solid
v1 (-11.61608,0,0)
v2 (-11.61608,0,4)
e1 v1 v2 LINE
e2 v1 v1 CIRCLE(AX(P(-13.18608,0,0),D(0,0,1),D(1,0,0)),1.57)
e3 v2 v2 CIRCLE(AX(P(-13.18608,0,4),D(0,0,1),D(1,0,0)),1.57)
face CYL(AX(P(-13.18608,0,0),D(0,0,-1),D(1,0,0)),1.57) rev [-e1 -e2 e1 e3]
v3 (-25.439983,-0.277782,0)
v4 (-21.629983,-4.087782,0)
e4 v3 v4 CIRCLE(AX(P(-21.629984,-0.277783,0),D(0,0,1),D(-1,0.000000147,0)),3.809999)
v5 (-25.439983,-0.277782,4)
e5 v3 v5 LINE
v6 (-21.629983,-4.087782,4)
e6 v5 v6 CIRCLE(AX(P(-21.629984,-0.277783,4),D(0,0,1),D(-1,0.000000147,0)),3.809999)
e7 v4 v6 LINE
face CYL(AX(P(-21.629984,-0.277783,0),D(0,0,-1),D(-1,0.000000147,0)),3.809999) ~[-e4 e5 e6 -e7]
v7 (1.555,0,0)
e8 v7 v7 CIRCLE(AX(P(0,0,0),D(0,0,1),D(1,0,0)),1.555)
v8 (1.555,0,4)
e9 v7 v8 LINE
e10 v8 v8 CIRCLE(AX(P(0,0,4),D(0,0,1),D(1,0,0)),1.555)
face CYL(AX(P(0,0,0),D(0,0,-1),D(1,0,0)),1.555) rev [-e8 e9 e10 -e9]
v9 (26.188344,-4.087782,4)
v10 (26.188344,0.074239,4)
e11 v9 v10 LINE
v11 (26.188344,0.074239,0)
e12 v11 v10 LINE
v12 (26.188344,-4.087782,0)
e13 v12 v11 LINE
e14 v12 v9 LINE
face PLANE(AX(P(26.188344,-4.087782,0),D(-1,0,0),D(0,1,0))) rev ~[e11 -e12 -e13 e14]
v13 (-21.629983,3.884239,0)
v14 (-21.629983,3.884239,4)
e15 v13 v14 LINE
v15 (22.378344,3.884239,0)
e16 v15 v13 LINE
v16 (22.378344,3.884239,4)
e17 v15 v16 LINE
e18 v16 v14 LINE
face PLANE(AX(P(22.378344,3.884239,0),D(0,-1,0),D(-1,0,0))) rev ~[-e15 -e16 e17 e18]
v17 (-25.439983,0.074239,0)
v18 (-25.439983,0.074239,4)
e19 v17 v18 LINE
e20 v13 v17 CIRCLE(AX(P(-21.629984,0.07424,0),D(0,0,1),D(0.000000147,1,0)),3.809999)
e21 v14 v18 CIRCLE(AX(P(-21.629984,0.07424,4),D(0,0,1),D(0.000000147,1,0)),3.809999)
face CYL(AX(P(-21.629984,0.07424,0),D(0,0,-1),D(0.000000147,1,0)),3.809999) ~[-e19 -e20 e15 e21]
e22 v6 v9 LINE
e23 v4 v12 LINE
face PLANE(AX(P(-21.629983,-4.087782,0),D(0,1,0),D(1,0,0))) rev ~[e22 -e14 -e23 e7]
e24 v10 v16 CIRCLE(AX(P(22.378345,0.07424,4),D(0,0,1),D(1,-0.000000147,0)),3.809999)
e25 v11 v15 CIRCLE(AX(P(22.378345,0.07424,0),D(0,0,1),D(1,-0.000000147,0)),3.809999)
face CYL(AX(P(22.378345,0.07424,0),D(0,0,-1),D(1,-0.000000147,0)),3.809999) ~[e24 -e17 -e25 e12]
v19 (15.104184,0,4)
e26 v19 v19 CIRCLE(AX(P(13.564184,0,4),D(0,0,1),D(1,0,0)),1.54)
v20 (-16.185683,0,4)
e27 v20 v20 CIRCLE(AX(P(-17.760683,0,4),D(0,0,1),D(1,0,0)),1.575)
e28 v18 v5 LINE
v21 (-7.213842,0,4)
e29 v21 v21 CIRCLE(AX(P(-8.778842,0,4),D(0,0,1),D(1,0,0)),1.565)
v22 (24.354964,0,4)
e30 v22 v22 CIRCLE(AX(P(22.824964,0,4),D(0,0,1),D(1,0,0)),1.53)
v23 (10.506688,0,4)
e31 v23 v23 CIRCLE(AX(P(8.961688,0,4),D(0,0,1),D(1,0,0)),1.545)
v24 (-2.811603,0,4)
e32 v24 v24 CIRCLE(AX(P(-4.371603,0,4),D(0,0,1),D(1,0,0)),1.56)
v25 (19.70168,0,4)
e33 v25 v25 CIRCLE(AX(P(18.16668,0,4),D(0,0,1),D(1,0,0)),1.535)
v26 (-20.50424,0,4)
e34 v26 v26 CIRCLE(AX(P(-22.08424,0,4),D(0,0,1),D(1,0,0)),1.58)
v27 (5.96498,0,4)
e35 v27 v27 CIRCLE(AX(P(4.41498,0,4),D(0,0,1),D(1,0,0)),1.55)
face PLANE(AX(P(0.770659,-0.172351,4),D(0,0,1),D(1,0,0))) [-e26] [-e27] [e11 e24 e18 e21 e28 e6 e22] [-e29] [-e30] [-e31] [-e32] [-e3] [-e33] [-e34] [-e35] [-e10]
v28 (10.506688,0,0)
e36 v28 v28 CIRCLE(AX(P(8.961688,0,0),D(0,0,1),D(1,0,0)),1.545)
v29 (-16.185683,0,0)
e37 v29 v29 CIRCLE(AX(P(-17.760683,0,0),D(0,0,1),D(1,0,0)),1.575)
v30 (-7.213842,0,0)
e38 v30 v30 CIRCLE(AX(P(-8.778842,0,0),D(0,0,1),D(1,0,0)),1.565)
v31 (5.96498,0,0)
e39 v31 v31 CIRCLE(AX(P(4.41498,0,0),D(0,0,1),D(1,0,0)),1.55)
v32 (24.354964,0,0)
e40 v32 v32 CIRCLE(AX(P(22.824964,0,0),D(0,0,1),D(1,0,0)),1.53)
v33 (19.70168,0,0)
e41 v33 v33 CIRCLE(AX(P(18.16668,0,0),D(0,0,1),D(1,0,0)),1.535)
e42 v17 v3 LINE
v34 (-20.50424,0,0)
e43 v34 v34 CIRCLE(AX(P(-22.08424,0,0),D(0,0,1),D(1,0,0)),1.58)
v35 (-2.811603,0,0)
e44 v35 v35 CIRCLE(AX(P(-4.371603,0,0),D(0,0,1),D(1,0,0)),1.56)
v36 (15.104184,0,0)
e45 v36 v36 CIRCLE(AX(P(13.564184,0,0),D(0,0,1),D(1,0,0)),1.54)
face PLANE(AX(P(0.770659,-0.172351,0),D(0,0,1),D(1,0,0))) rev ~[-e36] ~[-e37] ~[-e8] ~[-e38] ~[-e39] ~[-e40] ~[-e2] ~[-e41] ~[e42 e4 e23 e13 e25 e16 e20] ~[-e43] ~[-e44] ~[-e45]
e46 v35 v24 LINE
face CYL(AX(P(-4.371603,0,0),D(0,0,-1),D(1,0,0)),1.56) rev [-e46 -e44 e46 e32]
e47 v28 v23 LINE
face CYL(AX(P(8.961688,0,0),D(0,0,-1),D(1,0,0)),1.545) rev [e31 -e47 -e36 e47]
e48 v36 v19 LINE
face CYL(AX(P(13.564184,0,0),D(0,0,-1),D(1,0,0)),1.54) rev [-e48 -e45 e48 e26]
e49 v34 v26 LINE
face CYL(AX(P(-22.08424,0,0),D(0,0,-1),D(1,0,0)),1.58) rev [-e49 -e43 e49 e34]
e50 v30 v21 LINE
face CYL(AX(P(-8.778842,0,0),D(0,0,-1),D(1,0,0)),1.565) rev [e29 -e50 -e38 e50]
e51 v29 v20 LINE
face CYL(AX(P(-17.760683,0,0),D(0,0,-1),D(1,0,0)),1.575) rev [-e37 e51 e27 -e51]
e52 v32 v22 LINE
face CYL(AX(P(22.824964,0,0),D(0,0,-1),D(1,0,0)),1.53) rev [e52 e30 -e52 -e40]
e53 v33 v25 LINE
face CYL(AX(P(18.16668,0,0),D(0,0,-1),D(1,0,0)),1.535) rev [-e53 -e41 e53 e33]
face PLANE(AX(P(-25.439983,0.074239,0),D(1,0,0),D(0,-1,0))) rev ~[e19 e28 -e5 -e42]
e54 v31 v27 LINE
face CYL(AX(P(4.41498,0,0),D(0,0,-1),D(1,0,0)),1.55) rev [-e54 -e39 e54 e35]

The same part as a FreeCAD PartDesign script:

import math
import FreeCAD as App
import Part
import Sketcher
from FreeCAD import Vector

doc = App.newDocument("Part")
body = doc.addObject("PartDesign::Body", "Body")

sketch1 = body.newObject("Sketcher::SketchObject", "Sketch")
sketch1.AttachmentSupport = (doc.getObject("XY_Plane"), [""])
sketch1.MapMode = "FlatFace"
sketch1.addGeometry([
    Part.LineSegment(Vector(22.38, 3.88, 0), Vector(-21.63, 3.88, 0)),
    Part.ArcOfCircle(Part.Circle(Vector(-21.63, 0.07, 0), Vector(0, 0, 1), 3.81), math.radians(90), math.radians(180)),
    Part.LineSegment(Vector(-25.44, 0.07, 0), Vector(-25.44, -0.28, 0)),
    Part.ArcOfCircle(Part.Circle(Vector(-21.63, -0.28, 0), Vector(0, 0, 1), 3.81), math.radians(180), math.radians(270)),
    Part.LineSegment(Vector(-21.63, -4.09, 0), Vector(26.19, -4.09, 0)),
    Part.LineSegment(Vector(26.19, -4.09, 0), Vector(26.19, 0.07, 0)),
    Part.ArcOfCircle(Part.Circle(Vector(22.38, 0.07, 0), Vector(0, 0, 1), 3.81), math.radians(0), math.radians(90)),
    Part.Circle(Vector(-22.08, 0, 0), Vector(0, 0, 1), 1.58),
    Part.Circle(Vector(-17.76, 0, 0), Vector(0, 0, 1), 1.57),
    Part.Circle(Vector(-13.19, 0, 0), Vector(0, 0, 1), 1.57),
    Part.Circle(Vector(-8.78, 0, 0), Vector(0, 0, 1), 1.56),
    Part.Circle(Vector(-4.37, 0, 0), Vector(0, 0, 1), 1.56),
    Part.Circle(Vector(0, 0, 0), Vector(0, 0, 1), 1.55),
    Part.Circle(Vector(4.41, 0, 0), Vector(0, 0, 1), 1.55),
    Part.Circle(Vector(8.96, 0, 0), Vector(0, 0, 1), 1.54),
    Part.Circle(Vector(13.56, 0, 0), Vector(0, 0, 1), 1.54),
    Part.Circle(Vector(18.17, 0, 0), Vector(0, 0, 1), 1.53),
    Part.Circle(Vector(22.82, 0, 0), Vector(0, 0, 1), 1.53),
], False)
sketch1.addConstraint([
    Sketcher.Constraint("Tangent", 0, 2, 1, 1),
    Sketcher.Constraint("Tangent", 1, 2, 2, 1),
    Sketcher.Constraint("Tangent", 2, 2, 3, 1),
    Sketcher.Constraint("Tangent", 3, 2, 4, 1),
    Sketcher.Constraint("Coincident", 4, 2, 5, 1),
    Sketcher.Constraint("Tangent", 5, 2, 6, 1),
    Sketcher.Constraint("Tangent", 6, 2, 0, 1),
    Sketcher.Constraint("Horizontal", 0),
    Sketcher.Constraint("Vertical", 2),
    Sketcher.Constraint("Horizontal", 4),
    Sketcher.Constraint("Vertical", 5),
    Sketcher.Constraint("Coincident", 12, 3, -1, 1),
    Sketcher.Constraint("Equal", 1, 3),
    Sketcher.Constraint("Equal", 3, 6),
    Sketcher.Constraint("PointOnObject", 7, 3, -1),
    Sketcher.Constraint("PointOnObject", 8, 3, -1),
    Sketcher.Constraint("PointOnObject", 9, 3, -1),
    Sketcher.Constraint("PointOnObject", 10, 3, -1),
    Sketcher.Constraint("PointOnObject", 11, 3, -1),
    Sketcher.Constraint("PointOnObject", 13, 3, -1),
    Sketcher.Constraint("PointOnObject", 14, 3, -1),
    Sketcher.Constraint("PointOnObject", 15, 3, -1),
    Sketcher.Constraint("PointOnObject", 16, 3, -1),
    Sketcher.Constraint("PointOnObject", 17, 3, -1),
    Sketcher.Constraint("Diameter", 13, 3.1),
    Sketcher.Constraint("Diameter", 7, 3.16),
    Sketcher.Constraint("Diameter", 8, 3.15),
    Sketcher.Constraint("Diameter", 9, 3.14),
    Sketcher.Constraint("Diameter", 10, 3.13),
    Sketcher.Constraint("Diameter", 11, 3.12),
    Sketcher.Constraint("Diameter", 12, 3.11),
    Sketcher.Constraint("Diameter", 14, 3.09),
    Sketcher.Constraint("Diameter", 15, 3.08),
    Sketcher.Constraint("Diameter", 16, 3.07),
    Sketcher.Constraint("Diameter", 17, 3.06),
    Sketcher.Constraint("Radius", 1, 3.809999),
    Sketcher.Constraint("DistanceY", 2, 2, 2, 1, 0.352021),
    Sketcher.Constraint("DistanceX", 1, 3, 8, 3, 3.869301),
    Sketcher.Constraint("DistanceX", 7, 3, 10, 3, 13.305398),
    Sketcher.Constraint("DistanceX", 13, 3, 16, 3, 13.7517),
    Sketcher.Constraint("DistanceX", 0, 2, 0, 1, 44.008327),
    Sketcher.Constraint("DistanceY", -1, 1, 1, 3, 0.07424),
    Sketcher.Constraint("DistanceX", 7, 3, -1, 1, 22.08424),
    Sketcher.Constraint("DistanceX", 9, 3, -1, 1, 13.18608),
    Sketcher.Constraint("DistanceX", -1, 1, 13, 3, 4.41498),
    Sketcher.Constraint("DistanceX", 8, 3, 10, 3, 8.981841),
    Sketcher.Constraint("DistanceX", 10, 3, 11, 3, 4.407239),
    Sketcher.Constraint("DistanceX", 13, 3, 14, 3, 4.546708),
    Sketcher.Constraint("DistanceX", 15, 3, 6, 3, 8.814161),
    Sketcher.Constraint("DistanceX", 6, 3, 17, 3, 0.446619),
])
pad1 = body.newObject("PartDesign::Pad", "Pad")
pad1.Profile = sketch1
pad1.Length = 4

doc.recompute()
